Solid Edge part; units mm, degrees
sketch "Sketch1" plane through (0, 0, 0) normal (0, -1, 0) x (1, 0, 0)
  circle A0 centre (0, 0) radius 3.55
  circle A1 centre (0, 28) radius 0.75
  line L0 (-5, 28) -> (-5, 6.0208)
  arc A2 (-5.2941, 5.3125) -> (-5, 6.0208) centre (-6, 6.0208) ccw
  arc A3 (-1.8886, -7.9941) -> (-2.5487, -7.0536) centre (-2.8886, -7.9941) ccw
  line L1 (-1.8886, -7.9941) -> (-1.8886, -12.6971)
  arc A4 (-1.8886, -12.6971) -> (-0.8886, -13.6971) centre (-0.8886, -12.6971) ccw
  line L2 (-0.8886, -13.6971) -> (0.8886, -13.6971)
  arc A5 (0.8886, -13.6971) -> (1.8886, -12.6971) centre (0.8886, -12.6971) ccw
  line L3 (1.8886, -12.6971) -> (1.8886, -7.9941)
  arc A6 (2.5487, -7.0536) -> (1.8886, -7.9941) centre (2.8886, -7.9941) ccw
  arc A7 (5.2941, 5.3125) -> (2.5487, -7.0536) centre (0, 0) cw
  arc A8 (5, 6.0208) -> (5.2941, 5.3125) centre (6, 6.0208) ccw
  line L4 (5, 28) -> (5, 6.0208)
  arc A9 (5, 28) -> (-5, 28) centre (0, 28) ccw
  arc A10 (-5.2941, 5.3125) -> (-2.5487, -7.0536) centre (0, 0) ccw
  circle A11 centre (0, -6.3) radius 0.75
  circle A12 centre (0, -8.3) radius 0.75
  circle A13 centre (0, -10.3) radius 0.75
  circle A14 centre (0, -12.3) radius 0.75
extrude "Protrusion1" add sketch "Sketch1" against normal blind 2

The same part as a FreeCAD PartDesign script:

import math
import FreeCAD as App
import Part
import Sketcher
from FreeCAD import Vector

doc = App.newDocument("Part")
body = doc.addObject("PartDesign::Body", "Body")

sketch1 = body.newObject("Sketcher::SketchObject", "Sketch")
sketch1.AttachmentSupport = (doc.getObject("XZ_Plane"), [""])
sketch1.MapMode = "FlatFace"
sketch1.addGeometry(Part.ArcOfCircle(Part.Circle(Vector(0, 28, 0), Vector(0, 0, 1), 5), math.radians(0), math.radians(180)), False)
sketch1.addGeometry(Part.LineSegment(Vector(-5, 28, 0), Vector(-5, 6.0208, 0)), False)
sketch1.addGeometry(Part.ArcOfCircle(Part.Circle(Vector(-6, 6.0208, 0), Vector(0, 0, 1), 0.999992), math.radians(-45.097235), math.radians(0)), False)
sketch1.addGeometry(Part.ArcOfCircle(Part.Circle(Vector(0, 0, 0), Vector(0, 0, 1), 7.50001), math.radians(134.900605), math.radians(250.133529)), False)
sketch1.addGeometry(Part.ArcOfCircle(Part.Circle(Vector(-2.8886, -7.9941, 0), Vector(0, 0, 1), 1), math.radians(0), math.radians(70.129966)), False)
sketch1.addGeometry(Part.LineSegment(Vector(-1.8886, -7.9941, 0), Vector(-1.8886, -12.6971, 0)), False)
sketch1.addGeometry(Part.ArcOfCircle(Part.Circle(Vector(-0.8886, -12.6971, 0), Vector(0, 0, 1), 1), math.radians(180), math.radians(270)), False)
sketch1.addGeometry(Part.LineSegment(Vector(-0.8886, -13.6971, 0), Vector(0.8886, -13.6971, 0)), False)
sketch1.addGeometry(Part.ArcOfCircle(Part.Circle(Vector(0.8886, -12.6971, 0), Vector(0, 0, 1), 1), math.radians(-90), math.radians(0)), False)
sketch1.addGeometry(Part.LineSegment(Vector(1.8886, -12.6971, 0), Vector(1.8886, -7.9941, 0)), False)
sketch1.addGeometry(Part.ArcOfCircle(Part.Circle(Vector(2.8886, -7.9941, 0), Vector(0, 0, 1), 1.000036), math.radians(109.870034), math.radians(180)), False)
sketch1.addGeometry(Part.ArcOfCircle(Part.Circle(Vector(0, 0, 0), Vector(0, 0, 1), 7.50001), math.radians(-70.133529), math.radians(45.099395)), False)
sketch1.addGeometry(Part.ArcOfCircle(Part.Circle(Vector(6, 6.0208, 0), Vector(0, 0, 1), 1), math.radians(180), math.radians(225.097235)), False)
sketch1.addGeometry(Part.LineSegment(Vector(5, 6.0208, 0), Vector(5, 28, 0)), False)
sketch1.addGeometry(Part.Circle(Vector(0, -12.3, 0), Vector(0, 0, 1), 0.75), False)
sketch1.addGeometry(Part.Circle(Vector(0, -10.3, 0), Vector(0, 0, 1), 0.75), False)
sketch1.addGeometry(Part.Circle(Vector(0, -8.3, 0), Vector(0, 0, 1), 0.75), False)
sketch1.addGeometry(Part.Circle(Vector(0, -6.3, 0), Vector(0, 0, 1), 0.75), False)
sketch1.addGeometry(Part.Circle(Vector(0, 0, 0), Vector(0, 0, 1), 3.55), False)
sketch1.addGeometry(Part.Circle(Vector(0, 28, 0), Vector(0, 0, 1), 0.75), False)
sketch1.addConstraint(Sketcher.Constraint("Tangent", 0, 2, 1, 1))
sketch1.addConstraint(Sketcher.Constraint("Tangent", 1, 2, 2, 2))
sketch1.addConstraint(Sketcher.Constraint("Tangent", 2, 1, 3, 1))
sketch1.addConstraint(Sketcher.Constraint("Tangent", 3, 2, 4, 2))
sketch1.addConstraint(Sketcher.Constraint("Tangent", 4, 1, 5, 1))
sketch1.addConstraint(Sketcher.Constraint("Tangent", 5, 2, 6, 1))
sketch1.addConstraint(Sketcher.Constraint("Tangent", 6, 2, 7, 1))
sketch1.addConstraint(Sketcher.Constraint("Tangent", 7, 2, 8, 1))
sketch1.addConstraint(Sketcher.Constraint("Tangent", 8, 2, 9, 1))
sketch1.addConstraint(Sketcher.Constraint("Tangent", 9, 2, 10, 2))
sketch1.addConstraint(Sketcher.Constraint("Tangent", 10, 1, 11, 1))
sketch1.addConstraint(Sketcher.Constraint("Tangent", 11, 2, 12, 2))
sketch1.addConstraint(Sketcher.Constraint("Tangent", 12, 1, 13, 1))
sketch1.addConstraint(Sketcher.Constraint("Tangent", 13, 2, 0, 1))
sketch1.addConstraint(Sketcher.Constraint("Vertical", 1))
sketch1.addConstraint(Sketcher.Constraint("Vertical", 5))
sketch1.addConstraint(Sketcher.Constraint("Horizontal", 7))
sketch1.addConstraint(Sketcher.Constraint("Vertical", 9))
sketch1.addConstraint(Sketcher.Constraint("Vertical", 13))
sketch1.addConstraint(Sketcher.Constraint("Coincident", 3, 3, -1, 1))
sketch1.addConstraint(Sketcher.Constraint("Coincident", 11, 3, -1, 1))
sketch1.addConstraint(Sketcher.Constraint("Coincident", 18, 3, -1, 1))
sketch1.addConstraint(Sketcher.Constraint("Coincident", 19, 3, 0, 3))
sketch1.addConstraint(Sketcher.Constraint("Equal", 2, 4))
sketch1.addConstraint(Sketcher.Constraint("Equal", 4, 6))
sketch1.addConstraint(Sketcher.Constraint("Equal", 6, 8))
sketch1.addConstraint(Sketcher.Constraint("Equal", 8, 10))
sketch1.addConstraint(Sketcher.Constraint("Equal", 3, 11))
sketch1.addConstraint(Sketcher.Constraint("Equal", 10, 12))
sketch1.addConstraint(Sketcher.Constraint("Equal", 14, 15))
sketch1.addConstraint(Sketcher.Constraint("Equal", 15, 16))
sketch1.addConstraint(Sketcher.Constraint("Equal", 16, 17))
sketch1.addConstraint(Sketcher.Constraint("Equal", 17, 19))
sketch1.addConstraint(Sketcher.Constraint("PointOnObject", 0, 3, -2))
sketch1.addConstraint(Sketcher.Constraint("PointOnObject", 14, 3, -2))
sketch1.addConstraint(Sketcher.Constraint("PointOnObject", 15, 3, -2))
sketch1.addConstraint(Sketcher.Constraint("PointOnObject", 16, 3, -2))
sketch1.addConstraint(Sketcher.Constraint("PointOnObject", 17, 3, -2))
sketch1.addConstraint(Sketcher.Constraint("Horizontal", 4, 3, 10, 3))
sketch1.addConstraint(Sketcher.Constraint("Radius", 0, 5.0))
sketch1.addConstraint(Sketcher.Constraint("Radius", 2, 1.0))
sketch1.addConstraint(Sketcher.Constraint("Diameter", 14, 1.5))
sketch1.addConstraint(Sketcher.Constraint("Diameter", 18, 7.1))
sketch1.addConstraint(Sketcher.Constraint("Radius", 3, 7.5))
sketch1.addConstraint(Sketcher.Constraint("DistanceY", -1, 1, 0, 3, 28.0))
sketch1.addConstraint(Sketcher.Constraint("DistanceY", 14, 3, 15, 3, 2.0))
sketch1.addConstraint(Sketcher.Constraint("DistanceY", 15, 3, 16, 3, 2.0))
sketch1.addConstraint(Sketcher.Constraint("DistanceY", 16, 3, 17, 3, 2.0))
sketch1.addConstraint(Sketcher.Constraint("DistanceY", 14, 3, -1, 1, 12.3))
sketch1.addConstraint(Sketcher.Constraint("DistanceY", 5, 2, 5, 1, 4.703))
sketch1.addConstraint(Sketcher.Constraint("DistanceX", 10, 1, 10, 3, 0.34))
pad1 = body.newObject("PartDesign::Pad", "Pad")
pad1.Profile = sketch1
pad1.Length = 2
pad1.Reversed = True

doc.recompute()
